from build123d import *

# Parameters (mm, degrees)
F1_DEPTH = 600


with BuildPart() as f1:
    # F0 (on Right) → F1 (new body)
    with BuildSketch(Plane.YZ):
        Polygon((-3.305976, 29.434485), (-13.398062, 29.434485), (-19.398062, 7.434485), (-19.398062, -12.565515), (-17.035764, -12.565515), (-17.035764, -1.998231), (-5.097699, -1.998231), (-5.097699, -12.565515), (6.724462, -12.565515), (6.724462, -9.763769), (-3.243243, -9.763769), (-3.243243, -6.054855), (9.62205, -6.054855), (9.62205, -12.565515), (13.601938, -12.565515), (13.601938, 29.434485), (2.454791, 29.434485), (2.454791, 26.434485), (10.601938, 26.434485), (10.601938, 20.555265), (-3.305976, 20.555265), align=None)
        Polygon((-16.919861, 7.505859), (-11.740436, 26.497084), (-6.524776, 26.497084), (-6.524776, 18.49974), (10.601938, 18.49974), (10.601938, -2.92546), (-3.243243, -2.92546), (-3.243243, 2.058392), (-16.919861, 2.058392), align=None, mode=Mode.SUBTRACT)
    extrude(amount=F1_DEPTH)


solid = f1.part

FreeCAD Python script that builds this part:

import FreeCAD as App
import Part
import Sketcher

V = App.Vector

doc = App.newDocument("Part")
params = doc.addObject("Spreadsheet::Sheet", "Params")
for row, (alias, value) in enumerate([
    ("sketch1_height", "20 mm"),
    ("sketch1_height2", "42 mm"),
    ("sketch1_height3", "3 mm"),
    ("pad1_length", "600 mm"),
], start=1):
    params.set(f"A{row}", alias)
    params.set(f"B{row}", "=" + value)
    params.setAlias(f"B{row}", alias)

body = doc.addObject("PartDesign::Body", "Body")

# Sketch on YZ plane
sketch1 = doc.addObject("Sketcher::SketchObject", "Sketch")
body.addObject(sketch1)
sketch1.AttachmentSupport = (doc.YZ_Plane, [""])
sketch1.MapMode = "FlatFace"
sketch1.addGeometry([
    Part.LineSegment(V(-3.3, 29.4, 0), V(-13.4, 29.4, 0)),  # 0
    Part.LineSegment(V(-13.4, 29.4, 0), V(-19.4, 7.4, 0)),  # 1
    Part.LineSegment(V(-19.4, 7.4, 0), V(-19.4, -12.6, 0)),  # 2
    Part.LineSegment(V(-19.4, -12.6, 0), V(-17, -12.6, 0)),  # 3
    Part.LineSegment(V(-17, -12.6, 0), V(-17, -2, 0)),  # 4
    Part.LineSegment(V(-17, -2, 0), V(-5.1, -2, 0)),  # 5
    Part.LineSegment(V(-5.1, -2, 0), V(-5.1, -12.6, 0)),  # 6
    Part.LineSegment(V(-5.1, -12.6, 0), V(6.7, -12.6, 0)),  # 7
    Part.LineSegment(V(6.7, -12.6, 0), V(6.7, -9.8, 0)),  # 8
    Part.LineSegment(V(6.7, -9.8, 0), V(-3.2, -9.8, 0)),  # 9
    Part.LineSegment(V(-3.2, -9.8, 0), V(-3.2, -6.1, 0)),  # 10
    Part.LineSegment(V(-3.2, -6.1, 0), V(9.6, -6.1, 0)),  # 11
    Part.LineSegment(V(9.6, -6.1, 0), V(9.6, -12.6, 0)),  # 12
    Part.LineSegment(V(9.6, -12.6, 0), V(13.6, -12.6, 0)),  # 13
    Part.LineSegment(V(13.6, -12.6, 0), V(13.6, 29.4, 0)),  # 14
    Part.LineSegment(V(13.6, 29.4, 0), V(2.5, 29.4, 0)),  # 15
    Part.LineSegment(V(2.5, 29.4, 0), V(2.5, 26.4, 0)),  # 16
    Part.LineSegment(V(2.5, 26.4, 0), V(10.6, 26.4, 0)),  # 17
    Part.LineSegment(V(10.6, 26.4, 0), V(10.6, 20.6, 0)),  # 18
    Part.LineSegment(V(10.6, 20.6, 0), V(-3.3, 20.6, 0)),  # 19
    Part.LineSegment(V(-3.3, 20.6, 0), V(-3.3, 29.4, 0)),  # 20
    Part.LineSegment(V(-16.9, 2.1, 0), V(-16.9, 7.5, 0)),  # 21
    Part.LineSegment(V(-16.9, 7.5, 0), V(-11.7, 26.5, 0)),  # 22
    Part.LineSegment(V(-11.7, 26.5, 0), V(-6.5, 26.5, 0)),  # 23
    Part.LineSegment(V(-6.5, 26.5, 0), V(-6.5, 18.5, 0)),  # 24
    Part.LineSegment(V(-6.5, 18.5, 0), V(10.6, 18.5, 0)),  # 25
    Part.LineSegment(V(10.6, 18.5, 0), V(10.6, -2.9, 0)),  # 26
    Part.LineSegment(V(10.6, -2.9, 0), V(-3.2, -2.9, 0)),  # 27
    Part.LineSegment(V(-3.2, -2.9, 0), V(-3.2, 2.1, 0)),  # 28
    Part.LineSegment(V(-3.2, 2.1, 0), V(-16.9, 2.1, 0)),  # 29
], False)
sketch1.addConstraint([
    Sketcher.Constraint("Coincident", 0, 2, 1, 1),
    Sketcher.Constraint("Coincident", 1, 2, 2, 1),
    Sketcher.Constraint("Coincident", 2, 2, 3, 1),
    Sketcher.Constraint("Coincident", 3, 2, 4, 1),
    Sketcher.Constraint("Coincident", 4, 2, 5, 1),
    Sketcher.Constraint("Coincident", 5, 2, 6, 1),
    Sketcher.Constraint("Coincident", 6, 2, 7, 1),
    Sketcher.Constraint("Coincident", 7, 2, 8, 1),
    Sketcher.Constraint("Coincident", 8, 2, 9, 1),
    Sketcher.Constraint("Coincident", 9, 2, 10, 1),
    Sketcher.Constraint("Coincident", 10, 2, 11, 1),
    Sketcher.Constraint("Coincident", 11, 2, 12, 1),
    Sketcher.Constraint("Coincident", 12, 2, 13, 1),
    Sketcher.Constraint("Coincident", 13, 2, 14, 1),
    Sketcher.Constraint("Coincident", 14, 2, 15, 1),
    Sketcher.Constraint("Coincident", 15, 2, 16, 1),
    Sketcher.Constraint("Coincident", 16, 2, 17, 1),
    Sketcher.Constraint("Coincident", 17, 2, 18, 1),
    Sketcher.Constraint("Coincident", 18, 2, 19, 1),
    Sketcher.Constraint("Coincident", 19, 2, 20, 1),
    Sketcher.Constraint("Coincident", 20, 2, 0, 1),
    Sketcher.Constraint("Coincident", 21, 2, 22, 1),
    Sketcher.Constraint("Coincident", 22, 2, 23, 1),
    Sketcher.Constraint("Coincident", 23, 2, 24, 1),
    Sketcher.Constraint("Coincident", 24, 2, 25, 1),
    Sketcher.Constraint("Coincident", 25, 2, 26, 1),
    Sketcher.Constraint("Coincident", 26, 2, 27, 1),
    Sketcher.Constraint("Coincident", 27, 2, 28, 1),
    Sketcher.Constraint("Coincident", 28, 2, 29, 1),
    Sketcher.Constraint("Coincident", 29, 2, 21, 1),
    Sketcher.Constraint("Horizontal", 0),
    Sketcher.Constraint("Vertical", 2),
    Sketcher.Constraint("Horizontal", 3),
    Sketcher.Constraint("Vertical", 4),
    Sketcher.Constraint("Horizontal", 5),
    Sketcher.Constraint("Vertical", 6),
    Sketcher.Constraint("Horizontal", 7),
    Sketcher.Constraint("Vertical", 8),
    Sketcher.Constraint("Horizontal", 9),
    Sketcher.Constraint("Vertical", 10),
    Sketcher.Constraint("Horizontal", 11),
    Sketcher.Constraint("Vertical", 12),
    Sketcher.Constraint("Horizontal", 13),
    Sketcher.Constraint("Vertical", 14),
    Sketcher.Constraint("Horizontal", 15),
    Sketcher.Constraint("Vertical", 16),
    Sketcher.Constraint("Horizontal", 17),
    Sketcher.Constraint("Vertical", 18),
    Sketcher.Constraint("Horizontal", 19),
    Sketcher.Constraint("Vertical", 20),
    Sketcher.Constraint("Vertical", 21),
    Sketcher.Constraint("Horizontal", 23),
    Sketcher.Constraint("Vertical", 24),
    Sketcher.Constraint("Horizontal", 25),
    Sketcher.Constraint("Vertical", 26),
    Sketcher.Constraint("Horizontal", 27),
    Sketcher.Constraint("Vertical", 28),
    Sketcher.Constraint("Horizontal", 29),
    Sketcher.Constraint("Parallel", 1, 22),
    Sketcher.Constraint("Horizontal", 3, 2, 6, 2),
    Sketcher.Constraint("Horizontal", 7, 2, 12, 2),
    Sketcher.Constraint("Horizontal", 0, 2, 14, 2),
    Sketcher.Constraint("Vertical", 18, 2, 25, 2),
    Sketcher.Constraint("Vertical", 10, 2, 27, 2),
    Sketcher.Constraint("DistanceY", 2, 2, 2, 1, 20.0),
    Sketcher.Constraint("DistanceY", 14, 1, 14, 2, 42.0),
    Sketcher.Constraint("DistanceY", 16, 2, 16, 1, 3.0),
    Sketcher.Constraint("DistanceX", 1, 2, 0, 2, 6.0),
    Sketcher.Constraint("DistanceX", 0, 2, 14, 2, 27.0),
    Sketcher.Constraint("DistanceX", 17, 2, 14, 2, 3.0),
    Sketcher.Constraint("DistanceY", 26, 2, 26, 1, 21.4252),
    Sketcher.Constraint("DistanceX", 7, 1, 7, 2, 11.822161),
    Sketcher.Constraint("DistanceX", 13, 1, 13, 2, 3.979888),
    Sketcher.Constraint("DistanceX", 23, 1, 23, 2, 5.21566),
    Sketcher.Constraint("DistanceX", 27, 2, 27, 1, 13.845181),
    Sketcher.Constraint("DistanceX", 29, 2, 29, 1, 13.676618),
    Sketcher.Constraint("DistanceY", 12, 2, 12, 1, 6.51066),
    Sketcher.Constraint("DistanceY", 18, 2, 18, 1, 5.87922),
    Sketcher.Constraint("DistanceX", 5, 2, -1, 1, 5.097699),
    Sketcher.Constraint("DistanceY", 22, 2, 0, 2, 2.937401),
    Sketcher.Constraint("DistanceX", 23, 2, 20, 2, 3.2188),
    Sketcher.Constraint("DistanceX", 0, 2, 0, 1, 10.092086),
    Sketcher.Constraint("DistanceX", 3, 1, 3, 2, 2.362298),
    Sketcher.Constraint("DistanceX", 5, 1, 5, 2, 11.938065),
    Sketcher.Constraint("DistanceX", 15, 2, 15, 1, 11.147147),
    Sketcher.Constraint("DistanceY", 4, 1, 4, 2, 10.567284),
    Sketcher.Constraint("DistanceY", 8, 1, 8, 2, 2.801746),
    Sketcher.Constraint("DistanceY", 21, 1, 21, 2, 5.447467),
    Sketcher.Constraint("DistanceY", 24, 2, 24, 1, 7.997344),
    Sketcher.Constraint("DistanceY", 4, 2, -1, 1, 1.998231),
])
sketch1.setExpression("Constraints[64]", "Params.sketch1_height")
sketch1.setExpression("Constraints[65]", "Params.sketch1_height2")
sketch1.setExpression("Constraints[66]", "Params.sketch1_height3")
pad1 = doc.addObject("PartDesign::Pad", "Pad")
body.addObject(pad1)
pad1.Profile = sketch1
pad1.setExpression("Length", "Params.pad1_length")

doc.recompute()
